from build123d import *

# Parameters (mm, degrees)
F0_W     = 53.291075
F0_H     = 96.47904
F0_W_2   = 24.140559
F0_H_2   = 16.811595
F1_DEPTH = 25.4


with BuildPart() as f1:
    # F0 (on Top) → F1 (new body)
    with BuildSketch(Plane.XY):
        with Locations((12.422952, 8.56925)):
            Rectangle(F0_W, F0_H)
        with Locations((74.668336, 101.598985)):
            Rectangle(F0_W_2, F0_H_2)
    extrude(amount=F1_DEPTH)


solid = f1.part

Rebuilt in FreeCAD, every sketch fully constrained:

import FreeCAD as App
import Part
import Sketcher
Q = App.Units.Quantity

doc = App.newDocument("Part")
body = doc.addObject("PartDesign::Body", "Body")
body.AllowCompound = True

sketch1 = body.newObject("Sketcher::SketchObject", "Sketch")
sketch1.AttachmentSupport = (doc.getObject("XY_Plane"), [""])
sketch1.MapMode = "FlatFace"
sketch1.addGeometry(Part.LineSegment(App.Vector(-14, 57, 0), App.Vector(-14, -40, 0)), False)
sketch1.addGeometry(Part.LineSegment(App.Vector(-14, -40, 0), App.Vector(39, -40, 0)), False)
sketch1.addGeometry(Part.LineSegment(App.Vector(39, -40, 0), App.Vector(39, 57, 0)), False)
sketch1.addGeometry(Part.LineSegment(App.Vector(39, 57, 0), App.Vector(-14, 57, 0)), False)
sketch1.addGeometry(Part.LineSegment(App.Vector(63, 110, 0), App.Vector(63, 93, 0)), False)
sketch1.addGeometry(Part.LineSegment(App.Vector(63, 93, 0), App.Vector(87, 93, 0)), False)
sketch1.addGeometry(Part.LineSegment(App.Vector(87, 93, 0), App.Vector(87, 110, 0)), False)
sketch1.addGeometry(Part.LineSegment(App.Vector(87, 110, 0), App.Vector(63, 110, 0)), False)
sketch1.addConstraint(Sketcher.Constraint("Coincident", 0, 2, 1, 1))
sketch1.addConstraint(Sketcher.Constraint("Coincident", 1, 2, 2, 1))
sketch1.addConstraint(Sketcher.Constraint("Coincident", 2, 2, 3, 1))
sketch1.addConstraint(Sketcher.Constraint("Coincident", 3, 2, 0, 1))
sketch1.addConstraint(Sketcher.Constraint("Coincident", 4, 2, 5, 1))
sketch1.addConstraint(Sketcher.Constraint("Coincident", 5, 2, 6, 1))
sketch1.addConstraint(Sketcher.Constraint("Coincident", 6, 2, 7, 1))
sketch1.addConstraint(Sketcher.Constraint("Coincident", 7, 2, 4, 1))
sketch1.addConstraint(Sketcher.Constraint("Vertical", 0))
sketch1.addConstraint(Sketcher.Constraint("Horizontal", 1))
sketch1.addConstraint(Sketcher.Constraint("Vertical", 2))
sketch1.addConstraint(Sketcher.Constraint("Horizontal", 3))
sketch1.addConstraint(Sketcher.Constraint("Vertical", 4))
sketch1.addConstraint(Sketcher.Constraint("Horizontal", 5))
sketch1.addConstraint(Sketcher.Constraint("Vertical", 6))
sketch1.addConstraint(Sketcher.Constraint("Horizontal", 7))
sketch1.addConstraint(Sketcher.Constraint("DistanceX", 5, 1, 5, 2, 24.140559))
sketch1.addConstraint(Sketcher.Constraint("DistanceY", 0, 2, 0, 1, 96.47904))
sketch1.addConstraint(Sketcher.Constraint("DistanceX", 3, 2, 5, 2, 100.961201))
sketch1.addConstraint(Sketcher.Constraint("DistanceX", 1, 1, 1, 2, 53.291075))
sketch1.addConstraint(Sketcher.Constraint("DistanceY", 4, 2, 4, 1, 16.811595))
sketch1.addConstraint(Sketcher.Constraint("DistanceY", 0, 2, -1, 1, 39.67027))
sketch1.addConstraint(Sketcher.Constraint("DistanceX", -1, 1, 1, 2, 39.068489))
sketch1.addConstraint(Sketcher.Constraint("DistanceY", -1, 1, 4, 2, 93.193187))
pad1 = body.newObject("PartDesign::Pad", "Pad")
pad1.Profile = sketch1
pad1.Length = Q("1 in")

doc.recompute()
